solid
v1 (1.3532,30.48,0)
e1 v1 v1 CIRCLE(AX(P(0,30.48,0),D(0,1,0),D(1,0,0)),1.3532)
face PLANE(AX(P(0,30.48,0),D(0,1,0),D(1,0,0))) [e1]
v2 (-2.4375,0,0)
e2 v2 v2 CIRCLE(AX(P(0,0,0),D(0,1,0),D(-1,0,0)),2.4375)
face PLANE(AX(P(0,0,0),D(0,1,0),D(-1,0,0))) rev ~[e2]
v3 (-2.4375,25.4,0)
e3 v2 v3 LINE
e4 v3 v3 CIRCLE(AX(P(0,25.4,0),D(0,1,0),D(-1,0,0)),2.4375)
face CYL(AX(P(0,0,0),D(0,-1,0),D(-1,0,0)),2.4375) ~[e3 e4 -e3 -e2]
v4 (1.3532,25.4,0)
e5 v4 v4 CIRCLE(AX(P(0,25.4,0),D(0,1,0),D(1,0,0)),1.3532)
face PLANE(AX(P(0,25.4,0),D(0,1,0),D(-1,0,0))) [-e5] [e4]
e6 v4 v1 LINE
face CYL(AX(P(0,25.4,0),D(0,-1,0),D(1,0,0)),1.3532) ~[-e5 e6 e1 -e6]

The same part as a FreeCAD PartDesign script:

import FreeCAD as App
import Part
import Sketcher
Q = App.Units.Quantity

doc = App.newDocument("Part")
body = doc.addObject("PartDesign::Body", "Body")

sketch1 = body.newObject("Sketcher::SketchObject", "Sketch")
sketch1.AttachmentSupport = (doc.getObject("XZ_Plane"), [""])
sketch1.MapMode = "FlatFace"
sketch1.addGeometry(Part.Circle(App.Vector(0, 0, 0), App.Vector(0, 0, 1), 2.4), False)
sketch1.addConstraint([
    Sketcher.Constraint("Coincident", 0, 3, -1, 1),
    Sketcher.Constraint("Diameter", 0, 4.875),
])
pad1 = body.newObject("PartDesign::Pad", "Pad")
pad1.Profile = sketch1
pad1.Length = Q("1 in")
pad1.Reversed = True

sketch2 = body.newObject("Sketcher::SketchObject", "Sketch001")
sketch2.AttachmentSupport = (doc.getObject("XZ_Plane"), [""])
sketch2.MapMode = "FlatFace"
sketch2.AttachmentOffset = App.Placement(App.Vector(0, 0, -1 * 25.4), App.Rotation())
sketch2.addGeometry(Part.Circle(App.Vector(0, 0, 0), App.Vector(0, 0, 1), 1.4), False)
sketch2.addConstraint([
    Sketcher.Constraint("Coincident", 0, 3, -1, 1),
    Sketcher.Constraint("Diameter", 0, 2.7064),
])
pad2 = body.newObject("PartDesign::Pad", "Pad001")
pad2.Profile = sketch2
pad2.Length = Q("0.2 in")
pad2.Reversed = True

doc.recompute()
